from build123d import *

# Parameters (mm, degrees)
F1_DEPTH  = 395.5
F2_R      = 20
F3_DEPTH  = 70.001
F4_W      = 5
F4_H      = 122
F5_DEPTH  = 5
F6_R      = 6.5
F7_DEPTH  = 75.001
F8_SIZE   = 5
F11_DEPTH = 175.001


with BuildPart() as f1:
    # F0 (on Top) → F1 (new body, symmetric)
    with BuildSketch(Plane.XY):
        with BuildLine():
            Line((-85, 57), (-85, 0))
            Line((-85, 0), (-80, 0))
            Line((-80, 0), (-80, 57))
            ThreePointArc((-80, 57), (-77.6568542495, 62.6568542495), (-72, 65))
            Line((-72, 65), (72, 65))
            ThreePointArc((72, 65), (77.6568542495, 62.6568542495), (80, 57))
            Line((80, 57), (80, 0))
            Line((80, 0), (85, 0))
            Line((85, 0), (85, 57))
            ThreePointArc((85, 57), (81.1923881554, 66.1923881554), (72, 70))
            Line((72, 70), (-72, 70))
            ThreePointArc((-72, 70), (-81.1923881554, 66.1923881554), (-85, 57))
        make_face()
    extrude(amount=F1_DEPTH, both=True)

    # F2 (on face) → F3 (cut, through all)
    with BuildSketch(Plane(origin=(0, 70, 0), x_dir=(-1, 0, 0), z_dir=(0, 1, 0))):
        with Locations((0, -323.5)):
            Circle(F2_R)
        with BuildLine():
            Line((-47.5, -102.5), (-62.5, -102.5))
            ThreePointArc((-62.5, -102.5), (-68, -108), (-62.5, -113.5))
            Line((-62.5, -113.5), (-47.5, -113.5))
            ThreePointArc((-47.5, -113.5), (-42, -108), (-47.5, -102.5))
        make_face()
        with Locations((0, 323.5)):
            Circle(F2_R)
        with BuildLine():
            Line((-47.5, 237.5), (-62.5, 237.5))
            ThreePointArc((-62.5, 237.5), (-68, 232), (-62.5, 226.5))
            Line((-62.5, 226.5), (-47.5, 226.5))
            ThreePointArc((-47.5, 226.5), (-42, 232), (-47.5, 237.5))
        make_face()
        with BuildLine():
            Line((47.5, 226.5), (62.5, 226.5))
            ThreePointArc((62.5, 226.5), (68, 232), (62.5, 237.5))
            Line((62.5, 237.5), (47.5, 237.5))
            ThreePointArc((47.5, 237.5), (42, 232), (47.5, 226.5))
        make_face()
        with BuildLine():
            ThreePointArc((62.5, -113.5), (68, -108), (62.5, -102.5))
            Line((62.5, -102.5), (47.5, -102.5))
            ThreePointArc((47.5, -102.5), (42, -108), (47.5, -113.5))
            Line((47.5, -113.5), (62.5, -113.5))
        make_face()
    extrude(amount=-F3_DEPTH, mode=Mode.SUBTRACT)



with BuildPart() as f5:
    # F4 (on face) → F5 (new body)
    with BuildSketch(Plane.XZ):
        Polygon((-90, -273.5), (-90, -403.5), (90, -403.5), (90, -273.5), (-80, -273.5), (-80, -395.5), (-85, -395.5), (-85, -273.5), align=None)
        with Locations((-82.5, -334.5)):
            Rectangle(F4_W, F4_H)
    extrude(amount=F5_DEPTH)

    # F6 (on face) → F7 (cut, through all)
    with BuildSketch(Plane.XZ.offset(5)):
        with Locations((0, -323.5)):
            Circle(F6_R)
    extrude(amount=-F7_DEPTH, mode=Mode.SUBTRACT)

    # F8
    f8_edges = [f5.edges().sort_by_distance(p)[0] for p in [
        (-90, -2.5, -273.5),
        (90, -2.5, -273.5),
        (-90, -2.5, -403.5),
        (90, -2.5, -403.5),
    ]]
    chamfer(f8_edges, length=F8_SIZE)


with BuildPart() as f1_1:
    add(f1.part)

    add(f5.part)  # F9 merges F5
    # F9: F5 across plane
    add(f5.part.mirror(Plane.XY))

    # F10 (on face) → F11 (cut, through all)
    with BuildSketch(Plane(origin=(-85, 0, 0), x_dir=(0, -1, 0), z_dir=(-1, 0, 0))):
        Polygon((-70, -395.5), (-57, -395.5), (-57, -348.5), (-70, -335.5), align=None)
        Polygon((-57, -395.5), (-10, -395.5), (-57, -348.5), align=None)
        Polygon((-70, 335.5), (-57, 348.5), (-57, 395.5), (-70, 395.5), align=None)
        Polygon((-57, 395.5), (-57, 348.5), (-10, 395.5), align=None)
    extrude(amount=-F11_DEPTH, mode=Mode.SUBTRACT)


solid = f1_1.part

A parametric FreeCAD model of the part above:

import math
import FreeCAD as App
import Part
import Sketcher
from FreeCAD import Vector


def edges_at(feature, points):
    """Names of the edges that pass closest to the given points."""
    edges = feature.Shape.Edges
    near = lambda p: min(range(len(edges)), key=lambda i: edges[i].distToShape(Part.Vertex(*p))[0])
    return sorted({f"Edge{near(p) + 1}" for p in points})

doc = App.newDocument("Part")
body = doc.addObject("PartDesign::Body", "Body")

# Sketch on XY plane
sketch1 = body.newObject("Sketcher::SketchObject", "Sketch")
sketch1.AttachmentSupport = (doc.getObject("XY_Plane"), [""])
sketch1.MapMode = "FlatFace"
sketch1.addGeometry(Part.LineSegment(Vector(-85, 57, 0), Vector(-85, 0, 0)), False)
sketch1.addGeometry(Part.LineSegment(Vector(-85, 0, 0), Vector(-80, 0, 0)), False)
sketch1.addGeometry(Part.LineSegment(Vector(-80, 0, 0), Vector(-80, 57, 0)), False)
sketch1.addGeometry(Part.ArcOfCircle(Part.Circle(Vector(-72, 57, 0), Vector(0, 0, 1), 8), math.radians(90), math.radians(180)), False)
sketch1.addGeometry(Part.LineSegment(Vector(-72, 65, 0), Vector(72, 65, 0)), False)
sketch1.addGeometry(Part.ArcOfCircle(Part.Circle(Vector(72, 57, 0), Vector(0, 0, 1), 8), math.radians(0), math.radians(90)), False)
sketch1.addGeometry(Part.LineSegment(Vector(80, 57, 0), Vector(80, 0, 0)), False)
sketch1.addGeometry(Part.LineSegment(Vector(80, 0, 0), Vector(85, 0, 0)), False)
sketch1.addGeometry(Part.LineSegment(Vector(85, 0, 0), Vector(85, 57, 0)), False)
sketch1.addGeometry(Part.ArcOfCircle(Part.Circle(Vector(72, 57, 0), Vector(0, 0, 1), 13), math.radians(0), math.radians(90)), False)
sketch1.addGeometry(Part.LineSegment(Vector(72, 70, 0), Vector(-72, 70, 0)), False)
sketch1.addGeometry(Part.ArcOfCircle(Part.Circle(Vector(-72, 57, 0), Vector(0, 0, 1), 13), math.radians(90), math.radians(180)), False)
sketch1.addConstraint(Sketcher.Constraint("Coincident", 0, 2, 1, 1))
sketch1.addConstraint(Sketcher.Constraint("Coincident", 1, 2, 2, 1))
sketch1.addConstraint(Sketcher.Constraint("Tangent", 2, 2, 3, 2))
sketch1.addConstraint(Sketcher.Constraint("Tangent", 3, 1, 4, 1))
sketch1.addConstraint(Sketcher.Constraint("Tangent", 4, 2, 5, 2))
sketch1.addConstraint(Sketcher.Constraint("Tangent", 5, 1, 6, 1))
sketch1.addConstraint(Sketcher.Constraint("Coincident", 6, 2, 7, 1))
sketch1.addConstraint(Sketcher.Constraint("Coincident", 7, 2, 8, 1))
sketch1.addConstraint(Sketcher.Constraint("Tangent", 8, 2, 9, 1))
sketch1.addConstraint(Sketcher.Constraint("Tangent", 9, 2, 10, 1))
sketch1.addConstraint(Sketcher.Constraint("Tangent", 10, 2, 11, 1))
sketch1.addConstraint(Sketcher.Constraint("Tangent", 11, 2, 0, 1))
sketch1.addConstraint(Sketcher.Constraint("Vertical", 0))
sketch1.addConstraint(Sketcher.Constraint("Horizontal", 1))
sketch1.addConstraint(Sketcher.Constraint("Vertical", 2))
sketch1.addConstraint(Sketcher.Constraint("Horizontal", 4))
sketch1.addConstraint(Sketcher.Constraint("Vertical", 6))
sketch1.addConstraint(Sketcher.Constraint("Horizontal", 7))
sketch1.addConstraint(Sketcher.Constraint("Vertical", 8))
sketch1.addConstraint(Sketcher.Constraint("Horizontal", 10))
sketch1.addConstraint(Sketcher.Constraint("Coincident", 9, 3, 5, 3))
sketch1.addConstraint(Sketcher.Constraint("Coincident", 11, 3, 3, 3))
sketch1.addConstraint(Sketcher.Constraint("Equal", 3, 5))
sketch1.addConstraint(Sketcher.Constraint("Symmetric", 1, 2, 6, 2, -1, 1))
sketch1.addConstraint(Sketcher.Constraint("PointOnObject", 0, 2, -1))
sketch1.addConstraint(Sketcher.Constraint("Radius", 3, 8.0))
sketch1.addConstraint(Sketcher.Constraint("Radius", 9, 13.0))
sketch1.addConstraint(Sketcher.Constraint("DistanceX", 4, 1, 4, 2, 144.0))
sketch1.addConstraint(Sketcher.Constraint("DistanceY", 0, 2, 0, 1, 57.0))
pad1 = body.newObject("PartDesign::Pad", "Pad")
pad1.Profile = sketch1
pad1.Length = 791
pad1.Midplane = True

# Sketch on XZ plane
sketch2 = body.newObject("Sketcher::SketchObject", "Sketch001")
sketch2.AttachmentSupport = (doc.getObject("XZ_Plane"), [""])
sketch2.MapMode = "FlatFace"
sketch2.AttachmentOffset = App.Placement(Vector(0, 0, -70), App.Rotation())
sketch2.addGeometry(Part.Circle(Vector(0, -324, 0), Vector(0, 0, 1), 20), False)
sketch2.addGeometry(Part.LineSegment(Vector(48, -102, 0), Vector(62, -102, 0)), False)
sketch2.addGeometry(Part.ArcOfCircle(Part.Circle(Vector(62, -108, 0), Vector(0, 0, 1), 6), math.radians(-90), math.radians(90)), False)
sketch2.addGeometry(Part.LineSegment(Vector(62, -114, 0), Vector(48, -114, 0)), False)
sketch2.addGeometry(Part.ArcOfCircle(Part.Circle(Vector(48, -108, 0), Vector(0, 0, 1), 6), math.radians(90), math.radians(270)), False)
sketch2.addGeometry(Part.Circle(Vector(0, 324, 0), Vector(0, 0, 1), 20), False)
sketch2.addGeometry(Part.LineSegment(Vector(48, 238, 0), Vector(62, 238, 0)), False)
sketch2.addGeometry(Part.ArcOfCircle(Part.Circle(Vector(62, 232, 0), Vector(0, 0, 1), 6), math.radians(-90), math.radians(90)), False)
sketch2.addGeometry(Part.LineSegment(Vector(62, 226, 0), Vector(48, 226, 0)), False)
sketch2.addGeometry(Part.ArcOfCircle(Part.Circle(Vector(48, 232, 0), Vector(0, 0, 1), 6), math.radians(90), math.radians(270)), False)
sketch2.addGeometry(Part.LineSegment(Vector(-48, 226, 0), Vector(-62, 226, 0)), False)
sketch2.addGeometry(Part.ArcOfCircle(Part.Circle(Vector(-62, 232, 0), Vector(0, 0, 1), 6), math.radians(90), math.radians(270)), False)
sketch2.addGeometry(Part.LineSegment(Vector(-62, 238, 0), Vector(-48, 238, 0)), False)
sketch2.addGeometry(Part.ArcOfCircle(Part.Circle(Vector(-48, 232, 0), Vector(0, 0, 1), 6), math.radians(-90), math.radians(90)), False)
sketch2.addGeometry(Part.ArcOfCircle(Part.Circle(Vector(-62, -108, 0), Vector(0, 0, 1), 6), math.radians(90), math.radians(270)), False)
sketch2.addGeometry(Part.LineSegment(Vector(-62, -102, 0), Vector(-48, -102, 0)), False)
sketch2.addGeometry(Part.ArcOfCircle(Part.Circle(Vector(-48, -108, 0), Vector(0, 0, 1), 6), math.radians(-90), math.radians(90)), False)
sketch2.addGeometry(Part.LineSegment(Vector(-48, -114, 0), Vector(-62, -114, 0)), False)
sketch2.addConstraint(Sketcher.Constraint("Tangent", 1, 2, 2, 2))
sketch2.addConstraint(Sketcher.Constraint("Tangent", 2, 1, 3, 1))
sketch2.addConstraint(Sketcher.Constraint("Tangent", 3, 2, 4, 2))
sketch2.addConstraint(Sketcher.Constraint("Tangent", 4, 1, 1, 1))
sketch2.addConstraint(Sketcher.Constraint("Tangent", 6, 2, 7, 2))
sketch2.addConstraint(Sketcher.Constraint("Tangent", 7, 1, 8, 1))
sketch2.addConstraint(Sketcher.Constraint("Tangent", 8, 2, 9, 2))
sketch2.addConstraint(Sketcher.Constraint("Tangent", 9, 1, 6, 1))
sketch2.addConstraint(Sketcher.Constraint("Tangent", 10, 2, 11, 2))
sketch2.addConstraint(Sketcher.Constraint("Tangent", 11, 1, 12, 1))
sketch2.addConstraint(Sketcher.Constraint("Tangent", 12, 2, 13, 2))
sketch2.addConstraint(Sketcher.Constraint("Tangent", 13, 1, 10, 1))
sketch2.addConstraint(Sketcher.Constraint("Tangent", 14, 1, 15, 1))
sketch2.addConstraint(Sketcher.Constraint("Tangent", 15, 2, 16, 2))
sketch2.addConstraint(Sketcher.Constraint("Tangent", 16, 1, 17, 1))
sketch2.addConstraint(Sketcher.Constraint("Tangent", 17, 2, 14, 2))
sketch2.addConstraint(Sketcher.Constraint("Horizontal", 1))
sketch2.addConstraint(Sketcher.Constraint("Horizontal", 3))
sketch2.addConstraint(Sketcher.Constraint("Horizontal", 6))
sketch2.addConstraint(Sketcher.Constraint("Horizontal", 8))
sketch2.addConstraint(Sketcher.Constraint("Horizontal", 10))
sketch2.addConstraint(Sketcher.Constraint("Horizontal", 12))
sketch2.addConstraint(Sketcher.Constraint("Horizontal", 15))
sketch2.addConstraint(Sketcher.Constraint("Horizontal", 17))
sketch2.addConstraint(Sketcher.Constraint("Equal", 0, 5))
sketch2.addConstraint(Sketcher.Constraint("Equal", 4, 7))
sketch2.addConstraint(Sketcher.Constraint("Equal", 9, 11))
sketch2.addConstraint(Sketcher.Constraint("Equal", 13, 14))
sketch2.addConstraint(Sketcher.Constraint("Symmetric", 0, 3, 5, 3, -1, 1))
sketch2.addConstraint(Sketcher.Constraint("Symmetric", 7, 3, 11, 3, -2))
sketch2.addConstraint(Sketcher.Constraint("Symmetric", 2, 3, 14, 3, -2))
sketch2.addConstraint(Sketcher.Constraint("PointOnObject", 0, 3, -2))
sketch2.addConstraint(Sketcher.Constraint("Vertical", 2, 3, 7, 3))
sketch2.addConstraint(Sketcher.Constraint("Vertical", 4, 3, 9, 3))
sketch2.addConstraint(Sketcher.Constraint("Vertical", 13, 3, 16, 3))
sketch2.addConstraint(Sketcher.Constraint("Equal", 8, 10))
sketch2.addConstraint(Sketcher.Constraint("Diameter", 0, 40.0))
sketch2.addConstraint(Sketcher.Constraint("Radius", 2, 5.5))
sketch2.addConstraint(Sketcher.Constraint("DistanceX", 1, 1, 1, 2, 15.0))
sketch2.addConstraint(Sketcher.Constraint("DistanceY", 2, 3, -1, 1, 108.0))
sketch2.addConstraint(Sketcher.Constraint("DistanceY", -1, 1, 7, 3, 232.0))
sketch2.addConstraint(Sketcher.Constraint("DistanceY", 0, 3, 5, 3, 647.0))
sketch2.addConstraint(Sketcher.Constraint("DistanceX", 11, 3, 9, 3, 110.0))
pocket1 = body.newObject("PartDesign::Pocket", "Pocket")
pocket1.Profile = sketch2
pocket1.Type = "ThroughAll"
pocket1.Reversed = True
body2 = doc.addObject("PartDesign::Body", "Body001")

# Sketch on XZ plane
sketch3 = body2.newObject("Sketcher::SketchObject", "Sketch002")
sketch3.AttachmentSupport = (doc.getObject("XZ_Plane001"), [""])
sketch3.MapMode = "FlatFace"
sketch3.addGeometry(Part.LineSegment(Vector(-90, -274, 0), Vector(-90, -404, 0)), False)
sketch3.addGeometry(Part.LineSegment(Vector(-90, -404, 0), Vector(90, -404, 0)), False)
sketch3.addGeometry(Part.LineSegment(Vector(90, -404, 0), Vector(90, -274, 0)), False)
sketch3.addGeometry(Part.LineSegment(Vector(90, -274, 0), Vector(-90, -274, 0)), False)
sketch3.addConstraint(Sketcher.Constraint("Coincident", 0, 2, 1, 1))
sketch3.addConstraint(Sketcher.Constraint("Coincident", 1, 2, 2, 1))
sketch3.addConstraint(Sketcher.Constraint("Coincident", 2, 2, 3, 1))
sketch3.addConstraint(Sketcher.Constraint("Coincident", 3, 2, 0, 1))
sketch3.addConstraint(Sketcher.Constraint("Vertical", 0))
sketch3.addConstraint(Sketcher.Constraint("Horizontal", 1))
sketch3.addConstraint(Sketcher.Constraint("Vertical", 2))
sketch3.addConstraint(Sketcher.Constraint("Horizontal", 3))
sketch3.addConstraint(Sketcher.Constraint("DistanceX", 1, 1, 1, 2, 180.0))
sketch3.addConstraint(Sketcher.Constraint("DistanceY", 0, 2, 0, 1, 130.0))
sketch3.addConstraint(Sketcher.Constraint("DistanceX", 0, 2, -1, 1, 90.0))
sketch3.addConstraint(Sketcher.Constraint("DistanceY", 0, 2, -1, 1, 403.5))
pad2 = body2.newObject("PartDesign::Pad", "Pad001")
pad2.Profile = sketch3
pad2.Length = 5

# Sketch on XZ plane
sketch4 = body2.newObject("Sketcher::SketchObject", "Sketch003")
sketch4.AttachmentSupport = (doc.getObject("XZ_Plane001"), [""])
sketch4.MapMode = "FlatFace"
sketch4.AttachmentOffset = App.Placement(Vector(0, 0, 5), App.Rotation())
sketch4.addGeometry(Part.Circle(Vector(0, -324, 0), Vector(0, 0, 1), 6), False)
sketch4.addConstraint(Sketcher.Constraint("PointOnObject", 0, 3, -2))
sketch4.addConstraint(Sketcher.Constraint("Diameter", 0, 13.0))
sketch4.addConstraint(Sketcher.Constraint("DistanceY", 0, 3, -1, 1, 323.5))
pocket2 = body2.newObject("PartDesign::Pocket", "Pocket001")
pocket2.Profile = sketch4
pocket2.Type = "ThroughAll"
doc.recompute()

chamfer = body2.newObject("PartDesign::Chamfer", "Chamfer")
chamfer.Base = (pocket2, edges_at(pocket2, [
    (-90, -2.5, -273.5),
    (90, -2.5, -273.5),
    (-90, -2.5, -403.5),
    (90, -2.5, -403.5),
]))
chamfer.Size = 5
doc.recompute()

body3 = doc.addObject("PartDesign::Body", "Body002")
body3.BaseFeature = body2
boolean = body.newObject("PartDesign::Boolean", "Boolean")
boolean.Type = "Fuse"
boolean.addObjects([body3])
doc.recompute()

mirroring = doc.addObject("Part::Mirroring", "Mirroring")
mirroring.Source = body2
mirroring.Base = Vector(0, 0, 0)
mirroring.Normal = Vector(0, 0, 1)
body4 = doc.addObject("PartDesign::Body", "Body003")
body4.BaseFeature = mirroring
boolean2 = body.newObject("PartDesign::Boolean", "Boolean001")
boolean2.Type = "Fuse"
boolean2.addObjects([body4])
doc.recompute()

# Sketch on YZ plane
sketch5 = body.newObject("Sketcher::SketchObject", "Sketch004")
sketch5.AttachmentSupport = (doc.getObject("YZ_Plane"), [""])
sketch5.MapMode = "FlatFace"
sketch5.AttachmentOffset = App.Placement(Vector(0, 0, -85), App.Rotation())
sketch5.addGeometry(Part.LineSegment(Vector(70, -396, 0), Vector(10, -396, 0)), False)
sketch5.addGeometry(Part.LineSegment(Vector(10, -396, 0), Vector(70, -336, 0)), False)
sketch5.addGeometry(Part.LineSegment(Vector(70, -336, 0), Vector(70, -396, 0)), False)
sketch5.addGeometry(Part.LineSegment(Vector(70, 336, 0), Vector(10, 396, 0)), False)
sketch5.addGeometry(Part.LineSegment(Vector(10, 396, 0), Vector(70, 396, 0)), False)
sketch5.addGeometry(Part.LineSegment(Vector(70, 396, 0), Vector(70, 336, 0)), False)
sketch5.addConstraint(Sketcher.Constraint("Coincident", 0, 2, 1, 1))
sketch5.addConstraint(Sketcher.Constraint("Coincident", 1, 2, 2, 1))
sketch5.addConstraint(Sketcher.Constraint("Coincident", 2, 2, 0, 1))
sketch5.addConstraint(Sketcher.Constraint("Coincident", 3, 2, 4, 1))
sketch5.addConstraint(Sketcher.Constraint("Coincident", 4, 2, 5, 1))
sketch5.addConstraint(Sketcher.Constraint("Coincident", 5, 2, 3, 1))
sketch5.addConstraint(Sketcher.Constraint("Horizontal", 0))
sketch5.addConstraint(Sketcher.Constraint("Vertical", 2))
sketch5.addConstraint(Sketcher.Constraint("Horizontal", 4))
sketch5.addConstraint(Sketcher.Constraint("Vertical", 5))
sketch5.addConstraint(Sketcher.Constraint("Symmetric", 0, 2, 3, 2, -1))
sketch5.addConstraint(Sketcher.Constraint("Symmetric", 1, 2, 5, 2, -1))
sketch5.addConstraint(Sketcher.Constraint("Perpendicular", 1, 3))
sketch5.addConstraint(Sketcher.Constraint("DistanceX", 0, 2, 0, 1, 60.0))
sketch5.addConstraint(Sketcher.Constraint("DistanceX", -1, 1, 0, 2, 10.0))
sketch5.addConstraint(Sketcher.Constraint("DistanceY", 1, 2, 3, 2, 731.0))
pocket3 = body.newObject("PartDesign::Pocket", "Pocket002")
pocket3.Profile = sketch5
pocket3.Type = "ThroughAll"
pocket3.Reversed = True
mirroring.Visibility = False

doc.recompute()
